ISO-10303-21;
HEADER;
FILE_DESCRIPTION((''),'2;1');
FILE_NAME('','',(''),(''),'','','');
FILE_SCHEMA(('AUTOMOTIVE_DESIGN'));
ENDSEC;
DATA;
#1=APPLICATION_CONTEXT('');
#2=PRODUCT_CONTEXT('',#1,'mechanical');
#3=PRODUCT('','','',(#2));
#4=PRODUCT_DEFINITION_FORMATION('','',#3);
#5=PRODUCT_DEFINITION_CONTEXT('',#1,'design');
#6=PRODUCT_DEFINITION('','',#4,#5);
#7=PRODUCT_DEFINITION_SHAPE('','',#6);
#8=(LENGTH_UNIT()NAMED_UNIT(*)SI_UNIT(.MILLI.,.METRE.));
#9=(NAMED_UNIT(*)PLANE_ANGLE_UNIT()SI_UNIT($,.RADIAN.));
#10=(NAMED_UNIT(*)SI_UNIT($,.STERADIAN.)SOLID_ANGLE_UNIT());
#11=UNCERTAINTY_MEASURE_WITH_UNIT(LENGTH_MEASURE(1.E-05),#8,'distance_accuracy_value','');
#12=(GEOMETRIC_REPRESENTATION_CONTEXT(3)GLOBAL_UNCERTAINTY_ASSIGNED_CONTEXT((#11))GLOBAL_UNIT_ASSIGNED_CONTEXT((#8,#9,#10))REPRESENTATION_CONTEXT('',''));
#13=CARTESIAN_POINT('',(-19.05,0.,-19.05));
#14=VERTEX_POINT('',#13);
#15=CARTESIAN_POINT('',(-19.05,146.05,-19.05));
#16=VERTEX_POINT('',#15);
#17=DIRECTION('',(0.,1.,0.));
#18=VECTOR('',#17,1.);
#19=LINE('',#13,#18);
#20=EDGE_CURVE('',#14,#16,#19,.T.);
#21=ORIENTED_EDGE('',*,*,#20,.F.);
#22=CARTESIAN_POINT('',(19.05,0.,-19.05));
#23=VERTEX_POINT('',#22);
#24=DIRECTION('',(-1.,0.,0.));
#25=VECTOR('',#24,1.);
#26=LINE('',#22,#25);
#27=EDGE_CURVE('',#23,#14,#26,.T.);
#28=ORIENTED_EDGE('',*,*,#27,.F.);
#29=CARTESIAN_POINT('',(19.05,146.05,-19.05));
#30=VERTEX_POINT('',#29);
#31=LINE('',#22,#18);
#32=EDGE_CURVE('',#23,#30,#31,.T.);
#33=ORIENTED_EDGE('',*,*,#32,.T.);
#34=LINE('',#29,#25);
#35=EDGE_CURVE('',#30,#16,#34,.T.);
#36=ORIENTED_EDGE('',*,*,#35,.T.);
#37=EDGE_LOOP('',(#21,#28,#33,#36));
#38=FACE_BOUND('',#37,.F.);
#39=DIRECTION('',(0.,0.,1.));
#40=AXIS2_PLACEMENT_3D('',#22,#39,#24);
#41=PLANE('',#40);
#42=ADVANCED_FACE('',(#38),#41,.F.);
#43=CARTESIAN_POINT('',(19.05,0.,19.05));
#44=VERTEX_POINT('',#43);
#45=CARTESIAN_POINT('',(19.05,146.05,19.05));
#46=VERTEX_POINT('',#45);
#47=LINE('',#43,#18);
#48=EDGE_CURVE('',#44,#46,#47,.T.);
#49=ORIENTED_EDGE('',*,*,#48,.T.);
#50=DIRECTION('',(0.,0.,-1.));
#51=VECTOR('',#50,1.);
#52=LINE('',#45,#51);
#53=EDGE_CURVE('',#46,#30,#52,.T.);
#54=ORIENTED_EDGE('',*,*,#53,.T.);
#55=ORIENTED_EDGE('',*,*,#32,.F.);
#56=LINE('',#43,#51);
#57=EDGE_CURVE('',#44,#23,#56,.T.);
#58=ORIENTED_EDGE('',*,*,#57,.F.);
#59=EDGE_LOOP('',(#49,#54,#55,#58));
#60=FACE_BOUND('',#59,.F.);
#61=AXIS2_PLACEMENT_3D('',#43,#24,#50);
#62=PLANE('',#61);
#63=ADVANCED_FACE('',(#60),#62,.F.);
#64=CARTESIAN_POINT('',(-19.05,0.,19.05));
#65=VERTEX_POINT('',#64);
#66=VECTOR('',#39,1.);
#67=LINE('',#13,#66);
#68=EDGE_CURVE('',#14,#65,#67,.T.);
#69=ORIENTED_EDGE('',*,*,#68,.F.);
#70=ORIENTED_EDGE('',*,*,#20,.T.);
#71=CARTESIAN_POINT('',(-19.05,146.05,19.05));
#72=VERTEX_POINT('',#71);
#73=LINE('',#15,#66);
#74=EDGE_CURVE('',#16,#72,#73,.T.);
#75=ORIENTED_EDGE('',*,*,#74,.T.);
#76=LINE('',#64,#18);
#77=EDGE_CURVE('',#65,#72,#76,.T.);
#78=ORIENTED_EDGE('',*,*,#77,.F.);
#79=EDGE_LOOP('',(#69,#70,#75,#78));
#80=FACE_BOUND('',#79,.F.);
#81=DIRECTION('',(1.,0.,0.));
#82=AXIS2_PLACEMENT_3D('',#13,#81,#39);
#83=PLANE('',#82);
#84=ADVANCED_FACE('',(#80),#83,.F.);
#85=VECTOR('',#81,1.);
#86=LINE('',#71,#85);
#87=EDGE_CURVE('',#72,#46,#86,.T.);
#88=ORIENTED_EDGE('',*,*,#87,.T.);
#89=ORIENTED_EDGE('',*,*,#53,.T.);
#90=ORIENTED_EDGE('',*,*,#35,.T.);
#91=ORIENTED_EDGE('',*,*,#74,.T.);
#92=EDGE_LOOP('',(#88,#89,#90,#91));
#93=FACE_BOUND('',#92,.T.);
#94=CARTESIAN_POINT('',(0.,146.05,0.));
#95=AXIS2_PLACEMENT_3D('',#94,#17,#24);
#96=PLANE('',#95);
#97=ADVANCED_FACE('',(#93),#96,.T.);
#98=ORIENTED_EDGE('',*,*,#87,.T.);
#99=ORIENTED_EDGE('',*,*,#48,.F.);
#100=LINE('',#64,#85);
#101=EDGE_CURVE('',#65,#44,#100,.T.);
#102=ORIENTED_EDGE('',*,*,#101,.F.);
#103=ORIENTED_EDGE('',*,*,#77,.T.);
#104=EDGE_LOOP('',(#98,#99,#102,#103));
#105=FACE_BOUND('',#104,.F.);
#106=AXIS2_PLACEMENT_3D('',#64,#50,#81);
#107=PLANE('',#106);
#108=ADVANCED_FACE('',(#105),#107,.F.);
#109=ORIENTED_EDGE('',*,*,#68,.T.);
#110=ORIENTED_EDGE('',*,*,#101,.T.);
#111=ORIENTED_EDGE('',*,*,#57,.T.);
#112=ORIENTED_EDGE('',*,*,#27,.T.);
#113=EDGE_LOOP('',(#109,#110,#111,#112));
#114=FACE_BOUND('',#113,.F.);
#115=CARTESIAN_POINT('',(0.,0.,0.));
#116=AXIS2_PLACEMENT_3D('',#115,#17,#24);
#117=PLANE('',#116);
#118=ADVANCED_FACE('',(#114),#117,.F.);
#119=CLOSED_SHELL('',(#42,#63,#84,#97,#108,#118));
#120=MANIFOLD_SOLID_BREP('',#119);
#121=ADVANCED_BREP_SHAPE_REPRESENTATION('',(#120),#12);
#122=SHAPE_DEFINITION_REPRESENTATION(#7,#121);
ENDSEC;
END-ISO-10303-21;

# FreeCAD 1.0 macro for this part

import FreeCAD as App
import Part
import Sketcher
from FreeCAD import Vector
Q = App.Units.Quantity

doc = App.newDocument("Part")
params = doc.addObject("Spreadsheet::Sheet", "Params")
for row, (alias, value) in enumerate([
    ("sketch1_width", "1.5 in"),
    ("pad1_length", "5.75 in"),
], start=1):
    params.set(f"A{row}", alias)
    params.set(f"B{row}", "=" + value)
    params.setAlias(f"B{row}", alias)

body = doc.addObject("PartDesign::Body", "Body")

# Sketch on XZ plane
sketch1 = doc.addObject("Sketcher::SketchObject", "Sketch")
body.addObject(sketch1)
sketch1.AttachmentSupport = (doc.XZ_Plane, [""])
sketch1.MapMode = "FlatFace"
sketch1.addGeometry(Part.LineSegment(Vector(19.05, 19.05, 0), Vector(19.05, -19.05, 0)), False)
sketch1.addGeometry(Part.LineSegment(Vector(19.05, -19.05, 0), Vector(-19.05, -19.05, 0)), False)
sketch1.addGeometry(Part.LineSegment(Vector(-19.05, -19.05, 0), Vector(-19.05, 19.05, 0)), False)
sketch1.addGeometry(Part.LineSegment(Vector(-19.05, 19.05, 0), Vector(19.05, 19.05, 0)), False)
sketch1.addConstraint(Sketcher.Constraint("Coincident", 0, 2, 1, 1))
sketch1.addConstraint(Sketcher.Constraint("Coincident", 1, 2, 2, 1))
sketch1.addConstraint(Sketcher.Constraint("Coincident", 2, 2, 3, 1))
sketch1.addConstraint(Sketcher.Constraint("Coincident", 3, 2, 0, 1))
sketch1.addConstraint(Sketcher.Constraint("Vertical", 0))
sketch1.addConstraint(Sketcher.Constraint("Horizontal", 1))
sketch1.addConstraint(Sketcher.Constraint("Vertical", 2))
sketch1.addConstraint(Sketcher.Constraint("Horizontal", 3))
sketch1.addConstraint(Sketcher.Constraint("Symmetric", 0, 2, 2, 2, -1, 1))
sketch1.addConstraint(Sketcher.Constraint("Equal", 3, 0))
sketch1.addConstraint(Sketcher.Constraint("DistanceX", 1, 2, 1, 1, Q("1.5 in")))
sketch1.setExpression("Constraints[10]", "Params.sketch1_width")
pad1 = doc.addObject("PartDesign::Pad", "Pad")
body.addObject(pad1)
pad1.Profile = sketch1
pad1.setExpression("Length", "Params.pad1_length")
pad1.Reversed = True

doc.recompute()
